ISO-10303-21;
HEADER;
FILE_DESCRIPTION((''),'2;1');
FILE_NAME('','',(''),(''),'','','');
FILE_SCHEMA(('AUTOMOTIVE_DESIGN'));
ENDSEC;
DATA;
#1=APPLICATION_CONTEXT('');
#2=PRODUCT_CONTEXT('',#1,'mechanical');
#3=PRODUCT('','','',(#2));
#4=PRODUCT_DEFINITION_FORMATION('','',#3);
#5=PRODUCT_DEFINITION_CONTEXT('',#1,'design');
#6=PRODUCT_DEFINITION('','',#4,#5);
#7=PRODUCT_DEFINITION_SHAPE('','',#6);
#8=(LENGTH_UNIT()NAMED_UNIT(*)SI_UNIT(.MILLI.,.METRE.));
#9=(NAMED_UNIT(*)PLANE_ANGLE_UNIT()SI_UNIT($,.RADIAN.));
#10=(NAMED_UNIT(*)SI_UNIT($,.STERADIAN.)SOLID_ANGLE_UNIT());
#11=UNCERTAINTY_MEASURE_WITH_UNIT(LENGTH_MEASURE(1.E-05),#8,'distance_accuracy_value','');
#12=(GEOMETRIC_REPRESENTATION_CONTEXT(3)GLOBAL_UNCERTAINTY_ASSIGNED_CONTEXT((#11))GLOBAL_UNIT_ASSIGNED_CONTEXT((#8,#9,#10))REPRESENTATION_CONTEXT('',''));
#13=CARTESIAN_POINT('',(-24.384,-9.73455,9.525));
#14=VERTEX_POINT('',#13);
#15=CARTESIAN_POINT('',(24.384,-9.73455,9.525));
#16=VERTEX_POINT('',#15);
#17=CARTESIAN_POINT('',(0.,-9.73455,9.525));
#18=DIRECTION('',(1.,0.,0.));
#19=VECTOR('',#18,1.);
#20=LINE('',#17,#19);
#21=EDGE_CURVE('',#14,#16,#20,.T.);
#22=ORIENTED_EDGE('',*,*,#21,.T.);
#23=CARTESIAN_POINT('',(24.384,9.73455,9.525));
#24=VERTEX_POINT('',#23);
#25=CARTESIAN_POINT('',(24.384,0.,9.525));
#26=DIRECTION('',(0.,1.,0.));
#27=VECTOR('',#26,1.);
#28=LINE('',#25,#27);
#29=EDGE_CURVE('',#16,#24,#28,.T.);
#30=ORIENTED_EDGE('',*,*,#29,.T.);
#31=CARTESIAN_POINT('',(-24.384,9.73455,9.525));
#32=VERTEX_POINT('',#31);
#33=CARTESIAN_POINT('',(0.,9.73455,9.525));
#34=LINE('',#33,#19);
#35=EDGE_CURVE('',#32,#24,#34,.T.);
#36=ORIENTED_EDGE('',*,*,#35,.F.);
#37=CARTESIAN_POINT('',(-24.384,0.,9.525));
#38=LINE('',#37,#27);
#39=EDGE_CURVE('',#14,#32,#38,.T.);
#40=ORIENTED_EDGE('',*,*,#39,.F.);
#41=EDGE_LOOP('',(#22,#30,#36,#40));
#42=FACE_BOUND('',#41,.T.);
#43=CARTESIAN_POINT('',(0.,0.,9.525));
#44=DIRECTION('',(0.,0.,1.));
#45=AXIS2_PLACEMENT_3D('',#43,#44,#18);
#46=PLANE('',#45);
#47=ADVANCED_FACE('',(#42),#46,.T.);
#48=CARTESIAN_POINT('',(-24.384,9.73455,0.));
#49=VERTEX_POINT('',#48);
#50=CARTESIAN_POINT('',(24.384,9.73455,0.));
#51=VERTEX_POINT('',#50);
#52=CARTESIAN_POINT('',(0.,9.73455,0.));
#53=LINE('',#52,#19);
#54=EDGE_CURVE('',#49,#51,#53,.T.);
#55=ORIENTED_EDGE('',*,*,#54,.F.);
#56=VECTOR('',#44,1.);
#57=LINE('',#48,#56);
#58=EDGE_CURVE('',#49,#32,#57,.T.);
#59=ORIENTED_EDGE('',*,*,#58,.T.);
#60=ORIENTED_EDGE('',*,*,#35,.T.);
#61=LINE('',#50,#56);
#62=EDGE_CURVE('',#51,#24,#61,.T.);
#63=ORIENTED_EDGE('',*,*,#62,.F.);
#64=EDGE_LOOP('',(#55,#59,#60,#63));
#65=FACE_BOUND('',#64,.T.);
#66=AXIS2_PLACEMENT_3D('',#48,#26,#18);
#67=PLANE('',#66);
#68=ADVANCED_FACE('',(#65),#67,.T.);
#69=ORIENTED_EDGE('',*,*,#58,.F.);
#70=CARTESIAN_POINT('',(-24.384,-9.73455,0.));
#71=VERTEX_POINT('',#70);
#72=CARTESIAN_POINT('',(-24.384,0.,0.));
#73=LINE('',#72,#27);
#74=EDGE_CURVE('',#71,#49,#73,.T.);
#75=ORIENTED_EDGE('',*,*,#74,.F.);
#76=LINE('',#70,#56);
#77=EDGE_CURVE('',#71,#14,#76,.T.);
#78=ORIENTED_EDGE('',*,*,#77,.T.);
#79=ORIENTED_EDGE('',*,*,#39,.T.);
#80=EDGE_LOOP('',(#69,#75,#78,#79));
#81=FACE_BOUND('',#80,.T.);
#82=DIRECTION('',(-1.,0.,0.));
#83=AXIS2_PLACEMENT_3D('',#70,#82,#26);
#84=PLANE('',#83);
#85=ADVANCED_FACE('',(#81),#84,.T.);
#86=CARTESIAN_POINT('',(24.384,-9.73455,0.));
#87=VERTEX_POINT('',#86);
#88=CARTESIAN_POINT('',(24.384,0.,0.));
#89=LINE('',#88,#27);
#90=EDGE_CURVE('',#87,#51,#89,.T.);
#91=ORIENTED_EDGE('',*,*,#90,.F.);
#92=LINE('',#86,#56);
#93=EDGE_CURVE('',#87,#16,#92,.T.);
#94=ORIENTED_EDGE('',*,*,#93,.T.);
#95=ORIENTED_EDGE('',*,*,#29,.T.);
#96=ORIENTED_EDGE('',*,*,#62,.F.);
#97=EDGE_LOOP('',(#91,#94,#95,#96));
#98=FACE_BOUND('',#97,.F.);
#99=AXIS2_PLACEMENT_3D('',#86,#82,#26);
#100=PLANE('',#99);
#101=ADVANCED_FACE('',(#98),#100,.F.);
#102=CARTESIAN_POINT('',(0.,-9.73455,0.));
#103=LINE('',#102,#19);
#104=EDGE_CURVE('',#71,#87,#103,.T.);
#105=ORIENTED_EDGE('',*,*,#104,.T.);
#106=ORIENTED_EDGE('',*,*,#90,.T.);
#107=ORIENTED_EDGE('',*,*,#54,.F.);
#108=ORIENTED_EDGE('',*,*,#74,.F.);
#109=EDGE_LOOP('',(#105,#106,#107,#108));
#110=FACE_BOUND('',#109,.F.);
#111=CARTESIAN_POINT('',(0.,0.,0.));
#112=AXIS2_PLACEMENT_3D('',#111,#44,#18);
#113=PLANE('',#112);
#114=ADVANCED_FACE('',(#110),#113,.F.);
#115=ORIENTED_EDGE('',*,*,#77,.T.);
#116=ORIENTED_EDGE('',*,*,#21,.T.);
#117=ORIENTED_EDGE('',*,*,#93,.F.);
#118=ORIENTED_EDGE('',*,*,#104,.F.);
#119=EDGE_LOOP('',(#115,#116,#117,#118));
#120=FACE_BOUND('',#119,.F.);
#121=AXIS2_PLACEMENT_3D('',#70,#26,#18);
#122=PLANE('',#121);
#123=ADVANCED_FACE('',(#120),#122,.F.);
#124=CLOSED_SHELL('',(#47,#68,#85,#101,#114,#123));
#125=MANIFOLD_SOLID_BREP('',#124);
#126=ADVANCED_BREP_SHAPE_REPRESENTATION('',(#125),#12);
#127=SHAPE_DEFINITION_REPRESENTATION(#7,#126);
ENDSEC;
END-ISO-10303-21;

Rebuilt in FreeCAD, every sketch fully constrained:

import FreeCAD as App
import Part
import Sketcher
from FreeCAD import Vector
Q = App.Units.Quantity


def add_polygon(sketch, points):
    """Adds a closed chain of lines whose ends are joined by coincident constraints."""
    first, n = sketch.GeometryCount, len(points)
    for a, b in zip(points, points[1:] + points[:1]):
        sketch.addGeometry(Part.LineSegment(App.Vector(*a, 0), App.Vector(*b, 0)), False)
    for i in range(n):
        sketch.addConstraint(Sketcher.Constraint("Coincident", first + i, 2, first + (i + 1) % n, 1))

doc = App.newDocument("Part")
body = doc.addObject("PartDesign::Body", "Body")

sketch1 = doc.addObject("Sketcher::SketchObject", "Sketch")
body.addObject(sketch1)
sketch1.AttachmentSupport = (doc.XY_Plane, [""])
sketch1.MapMode = "FlatFace"
add_polygon(sketch1, [(-24, 10), (-24, -10), (24, -10), (24, 10)])
sketch1.addConstraint(Sketcher.Constraint("Vertical", 0))
sketch1.addConstraint(Sketcher.Constraint("Horizontal", 1))
sketch1.addConstraint(Sketcher.Constraint("Vertical", 2))
sketch1.addConstraint(Sketcher.Constraint("Horizontal", 3))
sketch1.addConstraint(Sketcher.Constraint("Symmetric", 0, 2, 2, 2, -1, 1))
sketch1.addConstraint(Sketcher.Constraint("DistanceX", 1, 1, 1, 2, Q("1.92 in")))
sketch1.addConstraint(Sketcher.Constraint("DistanceY", 0, 2, 0, 1, Q("0.7665 in")))
pad1 = doc.addObject("PartDesign::Pad", "Pad")
body.addObject(pad1)
pad1.Profile = sketch1
pad1.Length = Q("0.375 in")

doc.recompute()
